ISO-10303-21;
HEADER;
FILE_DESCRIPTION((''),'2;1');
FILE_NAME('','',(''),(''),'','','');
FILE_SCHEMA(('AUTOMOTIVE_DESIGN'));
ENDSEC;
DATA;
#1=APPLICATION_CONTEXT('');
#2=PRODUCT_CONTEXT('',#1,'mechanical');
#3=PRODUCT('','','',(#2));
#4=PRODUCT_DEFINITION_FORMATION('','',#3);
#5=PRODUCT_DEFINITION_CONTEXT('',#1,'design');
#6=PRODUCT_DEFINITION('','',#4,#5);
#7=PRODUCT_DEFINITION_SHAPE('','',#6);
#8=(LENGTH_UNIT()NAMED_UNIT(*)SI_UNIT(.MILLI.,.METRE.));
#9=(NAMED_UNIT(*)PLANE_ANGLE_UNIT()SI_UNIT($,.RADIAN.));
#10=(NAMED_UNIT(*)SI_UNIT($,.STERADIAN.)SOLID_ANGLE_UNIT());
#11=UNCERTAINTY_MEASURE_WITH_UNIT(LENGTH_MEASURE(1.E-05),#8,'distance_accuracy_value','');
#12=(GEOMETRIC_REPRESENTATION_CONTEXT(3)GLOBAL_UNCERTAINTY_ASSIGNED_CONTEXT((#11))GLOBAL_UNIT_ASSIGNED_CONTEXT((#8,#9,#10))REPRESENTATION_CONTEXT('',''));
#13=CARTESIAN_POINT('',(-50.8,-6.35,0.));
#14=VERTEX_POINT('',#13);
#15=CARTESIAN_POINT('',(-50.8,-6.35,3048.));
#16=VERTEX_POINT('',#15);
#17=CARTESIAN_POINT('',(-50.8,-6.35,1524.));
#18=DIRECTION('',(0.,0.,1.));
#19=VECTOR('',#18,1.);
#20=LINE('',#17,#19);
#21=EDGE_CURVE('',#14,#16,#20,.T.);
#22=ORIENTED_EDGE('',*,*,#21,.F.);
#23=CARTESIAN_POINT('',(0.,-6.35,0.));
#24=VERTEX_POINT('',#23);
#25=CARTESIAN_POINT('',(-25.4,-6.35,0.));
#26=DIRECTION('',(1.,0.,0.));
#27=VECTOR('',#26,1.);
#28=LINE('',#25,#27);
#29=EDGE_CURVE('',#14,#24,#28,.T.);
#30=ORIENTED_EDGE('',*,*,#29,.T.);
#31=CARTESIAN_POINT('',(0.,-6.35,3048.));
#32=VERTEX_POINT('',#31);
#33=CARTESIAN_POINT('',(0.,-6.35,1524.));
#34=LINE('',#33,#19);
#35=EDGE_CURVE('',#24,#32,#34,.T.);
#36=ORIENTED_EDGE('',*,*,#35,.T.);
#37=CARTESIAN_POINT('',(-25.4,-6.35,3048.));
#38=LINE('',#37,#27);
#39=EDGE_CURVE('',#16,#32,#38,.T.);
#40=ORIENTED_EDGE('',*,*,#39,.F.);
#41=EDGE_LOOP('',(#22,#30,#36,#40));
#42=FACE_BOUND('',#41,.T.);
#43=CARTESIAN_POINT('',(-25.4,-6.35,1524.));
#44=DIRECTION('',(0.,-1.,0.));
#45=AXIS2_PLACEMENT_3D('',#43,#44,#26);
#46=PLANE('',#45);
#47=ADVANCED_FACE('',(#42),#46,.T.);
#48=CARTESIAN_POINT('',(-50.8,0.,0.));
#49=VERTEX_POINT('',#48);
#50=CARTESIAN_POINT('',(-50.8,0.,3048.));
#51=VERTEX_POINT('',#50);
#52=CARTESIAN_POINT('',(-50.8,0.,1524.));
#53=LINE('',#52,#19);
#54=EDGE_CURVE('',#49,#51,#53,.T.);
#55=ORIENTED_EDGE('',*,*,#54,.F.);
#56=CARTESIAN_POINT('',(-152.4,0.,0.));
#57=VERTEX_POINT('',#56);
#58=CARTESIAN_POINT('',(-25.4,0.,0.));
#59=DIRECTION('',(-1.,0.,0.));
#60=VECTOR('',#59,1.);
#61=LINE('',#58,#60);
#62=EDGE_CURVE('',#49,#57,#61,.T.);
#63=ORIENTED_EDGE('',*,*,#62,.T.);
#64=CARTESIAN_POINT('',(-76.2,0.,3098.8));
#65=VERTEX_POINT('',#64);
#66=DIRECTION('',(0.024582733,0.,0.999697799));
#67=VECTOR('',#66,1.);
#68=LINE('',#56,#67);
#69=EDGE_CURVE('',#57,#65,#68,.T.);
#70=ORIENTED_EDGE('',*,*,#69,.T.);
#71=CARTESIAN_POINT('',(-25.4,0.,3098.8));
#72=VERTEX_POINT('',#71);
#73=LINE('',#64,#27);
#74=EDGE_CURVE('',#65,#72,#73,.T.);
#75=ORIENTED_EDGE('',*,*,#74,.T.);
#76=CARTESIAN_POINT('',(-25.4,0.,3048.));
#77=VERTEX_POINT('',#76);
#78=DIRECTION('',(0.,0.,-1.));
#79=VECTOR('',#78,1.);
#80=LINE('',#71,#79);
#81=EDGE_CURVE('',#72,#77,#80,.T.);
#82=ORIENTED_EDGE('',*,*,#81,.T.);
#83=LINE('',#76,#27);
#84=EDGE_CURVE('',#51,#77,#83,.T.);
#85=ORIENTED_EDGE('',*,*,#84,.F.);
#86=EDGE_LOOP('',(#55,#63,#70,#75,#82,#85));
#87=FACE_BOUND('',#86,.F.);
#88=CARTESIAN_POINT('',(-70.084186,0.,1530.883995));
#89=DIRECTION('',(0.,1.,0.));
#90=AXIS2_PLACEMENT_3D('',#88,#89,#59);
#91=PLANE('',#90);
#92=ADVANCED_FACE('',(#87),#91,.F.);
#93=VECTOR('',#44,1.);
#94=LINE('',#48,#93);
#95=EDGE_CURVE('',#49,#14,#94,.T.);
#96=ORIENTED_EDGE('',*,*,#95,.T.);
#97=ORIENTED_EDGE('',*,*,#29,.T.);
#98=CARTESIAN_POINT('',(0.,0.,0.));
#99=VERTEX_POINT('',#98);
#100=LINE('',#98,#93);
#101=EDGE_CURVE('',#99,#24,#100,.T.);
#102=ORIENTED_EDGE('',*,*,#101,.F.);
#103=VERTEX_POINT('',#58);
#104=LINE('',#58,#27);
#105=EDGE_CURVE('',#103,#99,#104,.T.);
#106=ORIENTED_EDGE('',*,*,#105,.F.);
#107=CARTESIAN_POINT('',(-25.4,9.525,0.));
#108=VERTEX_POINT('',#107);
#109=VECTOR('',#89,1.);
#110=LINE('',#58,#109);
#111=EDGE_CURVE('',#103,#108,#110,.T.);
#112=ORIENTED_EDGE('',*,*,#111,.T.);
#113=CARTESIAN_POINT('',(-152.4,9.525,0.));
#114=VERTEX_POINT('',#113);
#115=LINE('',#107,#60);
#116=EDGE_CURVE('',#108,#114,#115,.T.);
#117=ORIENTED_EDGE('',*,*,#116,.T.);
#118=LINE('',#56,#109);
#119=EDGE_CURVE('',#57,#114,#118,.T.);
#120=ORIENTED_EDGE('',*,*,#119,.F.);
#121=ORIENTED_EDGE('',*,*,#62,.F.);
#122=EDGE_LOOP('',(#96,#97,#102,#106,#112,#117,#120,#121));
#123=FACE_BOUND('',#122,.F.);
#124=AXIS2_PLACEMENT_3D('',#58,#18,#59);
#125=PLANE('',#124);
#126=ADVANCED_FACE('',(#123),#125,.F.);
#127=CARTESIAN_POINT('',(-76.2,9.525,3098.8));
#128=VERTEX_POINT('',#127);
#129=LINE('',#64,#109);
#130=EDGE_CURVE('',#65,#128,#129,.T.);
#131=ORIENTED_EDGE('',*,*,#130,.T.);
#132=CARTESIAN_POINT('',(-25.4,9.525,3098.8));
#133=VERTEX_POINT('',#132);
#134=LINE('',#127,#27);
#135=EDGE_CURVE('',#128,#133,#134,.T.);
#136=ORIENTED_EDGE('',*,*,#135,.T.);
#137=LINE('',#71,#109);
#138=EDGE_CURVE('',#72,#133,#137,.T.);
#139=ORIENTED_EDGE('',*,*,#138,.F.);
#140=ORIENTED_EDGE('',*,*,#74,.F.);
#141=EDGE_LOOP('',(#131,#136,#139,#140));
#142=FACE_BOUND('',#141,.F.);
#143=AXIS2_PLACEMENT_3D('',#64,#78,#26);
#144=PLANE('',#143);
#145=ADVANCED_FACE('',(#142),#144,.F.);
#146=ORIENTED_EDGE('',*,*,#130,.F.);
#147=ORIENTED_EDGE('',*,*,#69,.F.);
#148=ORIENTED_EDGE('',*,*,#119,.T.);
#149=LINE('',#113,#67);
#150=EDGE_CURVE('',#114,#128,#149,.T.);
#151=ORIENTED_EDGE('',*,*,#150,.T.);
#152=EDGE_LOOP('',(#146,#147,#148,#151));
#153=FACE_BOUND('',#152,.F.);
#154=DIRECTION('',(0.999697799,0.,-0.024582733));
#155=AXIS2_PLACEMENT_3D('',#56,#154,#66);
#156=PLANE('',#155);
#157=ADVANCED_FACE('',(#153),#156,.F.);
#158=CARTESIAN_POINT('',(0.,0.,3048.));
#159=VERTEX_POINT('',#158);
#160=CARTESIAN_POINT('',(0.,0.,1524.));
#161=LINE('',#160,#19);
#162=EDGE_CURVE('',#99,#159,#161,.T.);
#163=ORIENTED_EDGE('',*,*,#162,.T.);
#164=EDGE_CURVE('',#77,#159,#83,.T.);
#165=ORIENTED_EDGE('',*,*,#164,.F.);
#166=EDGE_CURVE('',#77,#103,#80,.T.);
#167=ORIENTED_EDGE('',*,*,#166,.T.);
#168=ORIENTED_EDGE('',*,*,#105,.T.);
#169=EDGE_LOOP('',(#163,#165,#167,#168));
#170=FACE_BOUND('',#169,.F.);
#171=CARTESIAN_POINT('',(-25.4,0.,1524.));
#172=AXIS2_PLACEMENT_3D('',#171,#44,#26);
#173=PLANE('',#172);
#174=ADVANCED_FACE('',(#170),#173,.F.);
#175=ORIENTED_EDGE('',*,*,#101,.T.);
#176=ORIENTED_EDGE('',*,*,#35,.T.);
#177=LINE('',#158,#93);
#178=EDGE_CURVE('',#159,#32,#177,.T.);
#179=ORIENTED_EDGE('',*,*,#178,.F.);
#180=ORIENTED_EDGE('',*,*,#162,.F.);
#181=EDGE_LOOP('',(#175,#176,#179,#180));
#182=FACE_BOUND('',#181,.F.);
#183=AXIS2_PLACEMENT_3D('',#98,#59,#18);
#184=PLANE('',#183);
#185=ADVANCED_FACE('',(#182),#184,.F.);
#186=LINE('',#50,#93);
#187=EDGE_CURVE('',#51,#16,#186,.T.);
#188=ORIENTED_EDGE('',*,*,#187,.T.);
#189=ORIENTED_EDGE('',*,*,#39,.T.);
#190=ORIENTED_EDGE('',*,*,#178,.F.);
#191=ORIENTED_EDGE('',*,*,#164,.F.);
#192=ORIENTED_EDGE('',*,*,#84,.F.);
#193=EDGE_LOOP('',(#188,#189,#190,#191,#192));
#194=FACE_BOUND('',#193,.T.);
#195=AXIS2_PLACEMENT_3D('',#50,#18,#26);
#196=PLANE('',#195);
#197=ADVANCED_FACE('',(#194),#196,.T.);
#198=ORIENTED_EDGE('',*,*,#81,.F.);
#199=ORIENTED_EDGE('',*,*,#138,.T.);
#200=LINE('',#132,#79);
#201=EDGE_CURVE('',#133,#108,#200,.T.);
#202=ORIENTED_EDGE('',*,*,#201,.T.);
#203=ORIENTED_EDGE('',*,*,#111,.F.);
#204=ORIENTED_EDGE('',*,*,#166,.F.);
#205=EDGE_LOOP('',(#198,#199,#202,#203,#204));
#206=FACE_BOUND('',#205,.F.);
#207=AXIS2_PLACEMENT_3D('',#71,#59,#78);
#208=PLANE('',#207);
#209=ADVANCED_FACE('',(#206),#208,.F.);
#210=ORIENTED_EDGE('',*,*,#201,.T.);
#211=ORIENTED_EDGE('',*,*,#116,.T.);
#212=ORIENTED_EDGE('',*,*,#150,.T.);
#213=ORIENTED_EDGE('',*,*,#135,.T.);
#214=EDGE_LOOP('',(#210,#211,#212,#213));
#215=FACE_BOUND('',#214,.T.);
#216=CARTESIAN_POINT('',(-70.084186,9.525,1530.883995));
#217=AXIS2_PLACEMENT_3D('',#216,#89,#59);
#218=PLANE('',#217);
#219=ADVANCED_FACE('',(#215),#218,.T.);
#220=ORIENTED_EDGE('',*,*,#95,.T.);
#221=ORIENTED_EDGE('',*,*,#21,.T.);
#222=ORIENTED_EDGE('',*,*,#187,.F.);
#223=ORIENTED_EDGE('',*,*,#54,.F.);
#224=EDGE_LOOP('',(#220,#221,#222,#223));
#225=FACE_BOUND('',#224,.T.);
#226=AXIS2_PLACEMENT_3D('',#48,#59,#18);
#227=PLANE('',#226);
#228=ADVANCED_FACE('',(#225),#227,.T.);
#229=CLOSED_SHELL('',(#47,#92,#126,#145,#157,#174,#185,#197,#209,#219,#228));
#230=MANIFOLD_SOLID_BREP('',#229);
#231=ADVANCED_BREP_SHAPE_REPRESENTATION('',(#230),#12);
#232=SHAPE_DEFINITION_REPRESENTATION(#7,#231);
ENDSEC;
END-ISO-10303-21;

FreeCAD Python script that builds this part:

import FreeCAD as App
import Part
import Sketcher
from FreeCAD import Vector
Q = App.Units.Quantity


def add_polygon(sketch, points):
    """Adds a closed chain of lines whose ends are joined by coincident constraints."""
    first, n = sketch.GeometryCount, len(points)
    for a, b in zip(points, points[1:] + points[:1]):
        sketch.addGeometry(Part.LineSegment(App.Vector(*a, 0), App.Vector(*b, 0)), False)
    for i in range(n):
        sketch.addConstraint(Sketcher.Constraint("Coincident", first + i, 2, first + (i + 1) % n, 1))

doc = App.newDocument("Part")
params = doc.addObject("Spreadsheet::Sheet", "Params")
for row, (alias, value) in enumerate([
    ("sketch1_width", "2 in"),
    ("sketch1_height", "120 in"),
    ("pad1_length", "0.25 in"),
    ("sketch2_width", "2 in"),
    ("sketch2_width2", "5 in"),
    ("sketch2_height", "122 in"),
    ("pad2_length", "0.375 in"),
], start=1):
    params.set(f"A{row}", alias)
    params.set(f"B{row}", "=" + value)
    params.setAlias(f"B{row}", alias)

body = doc.addObject("PartDesign::Body", "Body")

sketch1 = doc.addObject("Sketcher::SketchObject", "Sketch")
body.addObject(sketch1)
sketch1.AttachmentSupport = (doc.XZ_Plane, [""])
sketch1.MapMode = "FlatFace"
add_polygon(sketch1, [(-51, 3048), (-51, 0), (0, 0), (0, 3048)])
sketch1.addConstraint(Sketcher.Constraint("Vertical", 0))
sketch1.addConstraint(Sketcher.Constraint("Horizontal", 1))
sketch1.addConstraint(Sketcher.Constraint("Vertical", 2))
sketch1.addConstraint(Sketcher.Constraint("Horizontal", 3))
sketch1.addConstraint(Sketcher.Constraint("Coincident", 1, 2, -1, 1))
sketch1.addConstraint(Sketcher.Constraint("DistanceX", 1, 1, 1, 2, Q("2 in")))
sketch1.addConstraint(Sketcher.Constraint("DistanceY", 0, 2, 0, 1, Q("120 in")))
sketch1.setExpression("Constraints[9]", "Params.sketch1_width")
sketch1.setExpression("Constraints[10]", "Params.sketch1_height")
pad1 = doc.addObject("PartDesign::Pad", "Pad")
body.addObject(pad1)
pad1.Profile = sketch1
pad1.setExpression("Length", "Params.pad1_length")

sketch2 = doc.addObject("Sketcher::SketchObject", "Sketch001")
body.addObject(sketch2)
sketch2.AttachmentSupport = (doc.XZ_Plane, [""])
sketch2.MapMode = "FlatFace"
add_polygon(sketch2, [(-152, 0), (-76, 3099), (-25, 3099), (-25, 0)])
sketch2.addConstraint(Sketcher.Constraint("Horizontal", 1))
sketch2.addConstraint(Sketcher.Constraint("Vertical", 2))
sketch2.addConstraint(Sketcher.Constraint("Horizontal", 3))
sketch2.addConstraint(Sketcher.Constraint("PointOnObject", 2, 2, -1))
sketch2.addConstraint(Sketcher.Constraint("DistanceX", 1, 1, 1, 2, Q("2 in")))
sketch2.addConstraint(Sketcher.Constraint("DistanceX", 3, 2, 3, 1, Q("5 in")))
sketch2.addConstraint(Sketcher.Constraint("DistanceY", 2, 2, 2, 1, Q("122 in")))
sketch2.addConstraint(Sketcher.Constraint("DistanceX", 0, 2, -1, 1, Q("3 in")))
sketch2.setExpression("Constraints[8]", "Params.sketch2_width")
sketch2.setExpression("Constraints[9]", "Params.sketch2_width2")
sketch2.setExpression("Constraints[10]", "Params.sketch2_height")
pad2 = doc.addObject("PartDesign::Pad", "Pad001")
body.addObject(pad2)
pad2.Profile = sketch2
pad2.setExpression("Length", "Params.pad2_length")
pad2.Reversed = True

doc.recompute()
